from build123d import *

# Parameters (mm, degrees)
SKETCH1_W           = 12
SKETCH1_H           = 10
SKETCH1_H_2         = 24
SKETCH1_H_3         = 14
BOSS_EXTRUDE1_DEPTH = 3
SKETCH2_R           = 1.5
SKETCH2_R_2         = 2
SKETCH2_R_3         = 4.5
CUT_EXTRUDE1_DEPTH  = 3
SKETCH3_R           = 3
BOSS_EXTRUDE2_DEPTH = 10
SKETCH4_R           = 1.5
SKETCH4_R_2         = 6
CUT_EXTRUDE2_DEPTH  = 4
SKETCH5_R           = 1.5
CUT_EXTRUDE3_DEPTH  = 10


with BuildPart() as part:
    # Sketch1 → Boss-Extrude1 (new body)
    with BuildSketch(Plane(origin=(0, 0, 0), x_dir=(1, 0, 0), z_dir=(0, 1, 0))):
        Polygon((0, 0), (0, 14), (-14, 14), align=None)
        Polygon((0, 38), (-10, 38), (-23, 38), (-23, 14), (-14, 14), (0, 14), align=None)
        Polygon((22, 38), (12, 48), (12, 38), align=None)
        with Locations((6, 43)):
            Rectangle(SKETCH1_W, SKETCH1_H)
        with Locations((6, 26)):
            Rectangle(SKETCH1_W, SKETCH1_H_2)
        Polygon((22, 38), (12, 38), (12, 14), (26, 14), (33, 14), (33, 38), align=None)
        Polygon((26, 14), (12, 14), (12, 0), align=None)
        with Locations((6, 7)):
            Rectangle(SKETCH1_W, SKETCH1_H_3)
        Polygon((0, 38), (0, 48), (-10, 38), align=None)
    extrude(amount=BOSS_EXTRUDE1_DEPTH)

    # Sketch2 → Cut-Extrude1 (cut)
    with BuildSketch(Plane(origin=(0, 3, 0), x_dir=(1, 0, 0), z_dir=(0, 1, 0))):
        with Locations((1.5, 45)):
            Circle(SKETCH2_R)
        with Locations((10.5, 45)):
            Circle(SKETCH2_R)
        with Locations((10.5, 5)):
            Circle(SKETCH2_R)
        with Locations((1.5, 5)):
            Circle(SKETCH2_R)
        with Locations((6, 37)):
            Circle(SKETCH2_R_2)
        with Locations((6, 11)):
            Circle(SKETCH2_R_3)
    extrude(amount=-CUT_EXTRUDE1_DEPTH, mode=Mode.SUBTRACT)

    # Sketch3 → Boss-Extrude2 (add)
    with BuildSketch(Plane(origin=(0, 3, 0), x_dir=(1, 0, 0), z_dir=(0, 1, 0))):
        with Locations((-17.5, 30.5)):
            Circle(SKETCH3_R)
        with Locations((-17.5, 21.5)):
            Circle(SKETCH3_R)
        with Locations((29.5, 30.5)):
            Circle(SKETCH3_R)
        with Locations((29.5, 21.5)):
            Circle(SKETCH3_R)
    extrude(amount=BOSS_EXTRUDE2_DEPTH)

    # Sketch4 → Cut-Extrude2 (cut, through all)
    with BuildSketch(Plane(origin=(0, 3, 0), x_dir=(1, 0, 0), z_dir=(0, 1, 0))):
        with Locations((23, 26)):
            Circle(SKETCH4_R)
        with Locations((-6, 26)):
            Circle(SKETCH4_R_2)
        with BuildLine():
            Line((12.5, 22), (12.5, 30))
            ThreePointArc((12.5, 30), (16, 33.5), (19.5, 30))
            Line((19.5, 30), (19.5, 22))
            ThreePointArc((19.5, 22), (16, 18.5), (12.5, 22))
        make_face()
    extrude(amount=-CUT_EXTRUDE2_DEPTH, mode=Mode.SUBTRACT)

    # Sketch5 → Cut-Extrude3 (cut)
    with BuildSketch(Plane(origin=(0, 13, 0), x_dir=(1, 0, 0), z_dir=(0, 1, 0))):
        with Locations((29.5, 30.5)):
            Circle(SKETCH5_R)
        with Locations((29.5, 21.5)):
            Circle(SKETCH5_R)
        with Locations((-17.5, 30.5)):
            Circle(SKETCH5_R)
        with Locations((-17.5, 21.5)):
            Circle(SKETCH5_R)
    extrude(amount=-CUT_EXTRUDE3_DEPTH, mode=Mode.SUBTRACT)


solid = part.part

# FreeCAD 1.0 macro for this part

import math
import FreeCAD as App
import Part
import Sketcher
from FreeCAD import Vector
Q = App.Units.Quantity


def add_polygon(sketch, points):
    """Adds a closed chain of lines whose ends are joined by coincident constraints."""
    first, n = sketch.GeometryCount, len(points)
    for a, b in zip(points, points[1:] + points[:1]):
        sketch.addGeometry(Part.LineSegment(App.Vector(*a, 0), App.Vector(*b, 0)), False)
    for i in range(n):
        sketch.addConstraint(Sketcher.Constraint("Coincident", first + i, 2, first + (i + 1) % n, 1))

doc = App.newDocument("Part")
params = doc.addObject("Spreadsheet::Sheet", "Params")
for row, (alias, value) in enumerate([
    ("sketch1_width", "7 mm"),
    ("sketch1_width2", "11 mm"),
    ("sketch1_width3", "12 mm"),
    ("sketch1_width4", "13 mm"),
    ("sketch1_height", "24 mm"),
    ("pad1_length", "3 mm"),
    ("sketch2_diameter", "3 mm"),
    ("sketch2_diameter2", "4 mm"),
    ("sketch2_diameter3", "9 mm"),
    ("pocket1_length", "3 mm"),
    ("sketch3_diameter", "6 mm"),
    ("pad2_length", "10 mm"),
    ("sketch4_diameter", "3 mm"),
    ("sketch4_diameter2", "12 mm"),
    ("sketch4_radius", "3.5 mm"),
    ("sketch4_height", "8 mm"),
    ("sketch5_diameter", "3 mm"),
    ("pocket3_length", "10 mm"),
], start=1):
    params.set(f"A{row}", alias)
    params.set(f"B{row}", "=" + value)
    params.setAlias(f"B{row}", alias)

body = doc.addObject("PartDesign::Body", "Body")

# Sketch on XZ plane
sketch1 = body.newObject("Sketcher::SketchObject", "Sketch")
sketch1.AttachmentSupport = (doc.getObject("XZ_Plane"), [""])
sketch1.MapMode = "FlatFace"
add_polygon(sketch1, [(12, 0), (26, -14), (33, -14), (33, -38), (22, -38), (12, -48), (0, -48), (-10, -38), (-23, -38), (-23, -14), (-14, -14), (0, 0)])  # lines 0-11
sketch1.addConstraint([
    Sketcher.Constraint("Horizontal", 1),
    Sketcher.Constraint("Vertical", 2),
    Sketcher.Constraint("Horizontal", 3),
    Sketcher.Constraint("Horizontal", 5),
    Sketcher.Constraint("Horizontal", 7),
    Sketcher.Constraint("Vertical", 8),
    Sketcher.Constraint("Horizontal", 9),
    Sketcher.Constraint("Horizontal", 11),
    Sketcher.Constraint("Coincident", 10, 2, -1, 1),
    Sketcher.Constraint("PointOnObject", 5, 2, -2),
    Sketcher.Constraint("Perpendicular", 0, 4),
    Sketcher.Constraint("Perpendicular", 4, 6),
    Sketcher.Constraint("Perpendicular", 6, 10),
    Sketcher.Constraint("Horizontal", 3, 2, 6, 2),
    Sketcher.Constraint("Horizontal", 1, 2, 8, 2),
    Sketcher.Constraint("Vertical", 4, 2, 11, 2),
    Sketcher.Constraint("Equal", 4, 6),
    Sketcher.Constraint("DistanceX", 1, 1, 1, 2, Q("7 mm")),
    Sketcher.Constraint("DistanceX", 3, 2, 3, 1, Q("11 mm")),
    Sketcher.Constraint("DistanceX", 5, 2, 5, 1, Q("12 mm")),
    Sketcher.Constraint("DistanceX", 7, 2, 7, 1, Q("13 mm")),
    Sketcher.Constraint("DistanceY", 2, 2, 2, 1, Q("24 mm")),
    Sketcher.Constraint("DistanceX", -1, 1, 0, 2, Q("26 mm")),
])
sketch1.setExpression("Constraints[29]", "Params.sketch1_width")
sketch1.setExpression("Constraints[30]", "Params.sketch1_width2")
sketch1.setExpression("Constraints[31]", "Params.sketch1_width3")
sketch1.setExpression("Constraints[32]", "Params.sketch1_width4")
sketch1.setExpression("Constraints[33]", "Params.sketch1_height")
pad1 = body.newObject("PartDesign::Pad", "Pad")
pad1.Profile = sketch1
pad1.setExpression("Length", "Params.pad1_length")
pad1.Reversed = True

# Sketch on XZ plane
sketch2 = body.newObject("Sketcher::SketchObject", "Sketch001")
sketch2.AttachmentSupport = (doc.getObject("XZ_Plane"), [""])
sketch2.MapMode = "FlatFace"
sketch2.AttachmentOffset = App.Placement(Vector(0, 0, -3), App.Rotation())
sketch2.addGeometry([
    Part.Circle(Vector(1.5, -45, 0), Vector(0, 0, 1), 1.5),  # 0
    Part.Circle(Vector(10.5, -45, 0), Vector(0, 0, 1), 1.5),  # 1
    Part.Circle(Vector(10.5, -5, 0), Vector(0, 0, 1), 1.5),  # 2
    Part.Circle(Vector(1.5, -5, 0), Vector(0, 0, 1), 1.5),  # 3
    Part.Circle(Vector(6, -37, 0), Vector(0, 0, 1), 2),  # 4
    Part.Circle(Vector(6, -11, 0), Vector(0, 0, 1), 4.5),  # 5
], False)
sketch2.addConstraint([
    Sketcher.Constraint("Equal", 0, 1),
    Sketcher.Constraint("Equal", 1, 2),
    Sketcher.Constraint("Equal", 2, 3),
    Sketcher.Constraint("Horizontal", 0, 3, 1, 3),
    Sketcher.Constraint("Horizontal", 2, 3, 3, 3),
    Sketcher.Constraint("Vertical", 1, 3, 2, 3),
    Sketcher.Constraint("Vertical", 0, 3, 3, 3),
    Sketcher.Constraint("Vertical", 4, 3, 5, 3),
    Sketcher.Constraint("Diameter", 0, Q("3 mm")),
    Sketcher.Constraint("Diameter", 4, Q("4 mm")),
    Sketcher.Constraint("Diameter", 5, Q("9 mm")),
    Sketcher.Constraint("DistanceY", 0, 3, -1, 1, Q("45 mm")),
    Sketcher.Constraint("DistanceY", 2, 3, -1, 1, Q("5 mm")),
    Sketcher.Constraint("DistanceX", -1, 1, 4, 3, Q("6 mm")),
    Sketcher.Constraint("DistanceY", 4, 3, -1, 1, Q("37 mm")),
    Sketcher.Constraint("DistanceY", 5, 3, -1, 1, Q("11 mm")),
    Sketcher.Constraint("DistanceX", 0, 3, 1, 3, Q("9 mm")),
    Sketcher.Constraint("DistanceX", -1, 1, 0, 3, Q("1.5 mm")),
])
sketch2.setExpression("Constraints[8]", "Params.sketch2_diameter")
sketch2.setExpression("Constraints[9]", "Params.sketch2_diameter2")
sketch2.setExpression("Constraints[10]", "Params.sketch2_diameter3")
pocket1 = body.newObject("PartDesign::Pocket", "Pocket")
pocket1.Profile = sketch2
pocket1.setExpression("Length", "Params.pocket1_length")
pocket1.Reversed = True

# Sketch on XZ plane
sketch3 = body.newObject("Sketcher::SketchObject", "Sketch002")
sketch3.AttachmentSupport = (doc.getObject("XZ_Plane"), [""])
sketch3.MapMode = "FlatFace"
sketch3.AttachmentOffset = App.Placement(Vector(0, 0, -3), App.Rotation())
sketch3.addGeometry([
    Part.Circle(Vector(-17.5, -30.5, 0), Vector(0, 0, 1), 3),
    Part.Circle(Vector(-17.5, -21.5, 0), Vector(0, 0, 1), 3),
    Part.Circle(Vector(29.5, -30.5, 0), Vector(0, 0, 1), 3),
    Part.Circle(Vector(29.5, -21.5, 0), Vector(0, 0, 1), 3),
], False)
sketch3.addConstraint([
    Sketcher.Constraint("Equal", 0, 1),
    Sketcher.Constraint("Equal", 1, 2),
    Sketcher.Constraint("Equal", 2, 3),
    Sketcher.Constraint("Horizontal", 0, 3, 2, 3),
    Sketcher.Constraint("Horizontal", 1, 3, 3, 3),
    Sketcher.Constraint("Vertical", 0, 3, 1, 3),
    Sketcher.Constraint("Vertical", 2, 3, 3, 3),
    Sketcher.Constraint("Diameter", 0, Q("6 mm")),
    Sketcher.Constraint("DistanceY", 0, 3, 1, 3, Q("9 mm")),
    Sketcher.Constraint("DistanceX", 0, 3, 2, 3, Q("47 mm")),
    Sketcher.Constraint("DistanceX", 0, 3, -1, 1, Q("17.5 mm")),
    Sketcher.Constraint("DistanceY", 0, 3, -1, 1, Q("30.5 mm")),
])
sketch3.setExpression("Constraints[7]", "Params.sketch3_diameter")
pad2 = body.newObject("PartDesign::Pad", "Pad001")
pad2.Profile = sketch3
pad2.setExpression("Length", "Params.pad2_length")
pad2.Reversed = True

# Sketch on XZ plane
sketch4 = body.newObject("Sketcher::SketchObject", "Sketch003")
sketch4.AttachmentSupport = (doc.getObject("XZ_Plane"), [""])
sketch4.MapMode = "FlatFace"
sketch4.AttachmentOffset = App.Placement(Vector(0, 0, -3), App.Rotation())
sketch4.addGeometry([
    Part.Circle(Vector(23, -26, 0), Vector(0, 0, 1), 1.5),  # 0
    Part.Circle(Vector(-6, -26, 0), Vector(0, 0, 1), 6),  # 1
    Part.LineSegment(Vector(12.5, -30, 0), Vector(12.5, -22, 0)),  # 2
    Part.ArcOfCircle(Part.Circle(Vector(16, -22, 0), Vector(0, 0, 1), 3.5), math.radians(0), math.radians(180)),  # 3
    Part.LineSegment(Vector(19.5, -22, 0), Vector(19.5, -30, 0)),  # 4
    Part.ArcOfCircle(Part.Circle(Vector(16, -30, 0), Vector(0, 0, 1), 3.5), math.radians(180), math.radians(360)),  # 5
], False)
sketch4.addConstraint([
    Sketcher.Constraint("Tangent", 2, 2, 3, 2),
    Sketcher.Constraint("Tangent", 3, 1, 4, 1),
    Sketcher.Constraint("Tangent", 4, 2, 5, 2),
    Sketcher.Constraint("Tangent", 5, 1, 2, 1),
    Sketcher.Constraint("Vertical", 2),
    Sketcher.Constraint("Vertical", 4),
    Sketcher.Constraint("Horizontal", 0, 3, 1, 3),
    Sketcher.Constraint("Diameter", 0, Q("3 mm")),
    Sketcher.Constraint("Diameter", 1, Q("12 mm")),
    Sketcher.Constraint("Radius", 3, Q("3.5 mm")),
    Sketcher.Constraint("DistanceY", 2, 1, 2, 2, Q("8 mm")),
    Sketcher.Constraint("DistanceX", -1, 1, 0, 3, Q("23 mm")),
    Sketcher.Constraint("DistanceY", 0, 3, -1, 1, Q("26 mm")),
    Sketcher.Constraint("DistanceX", 1, 3, -1, 1, Q("6 mm")),
    Sketcher.Constraint("DistanceX", -1, 1, 3, 3, Q("16 mm")),
    Sketcher.Constraint("DistanceY", 3, 3, -1, 1, Q("22 mm")),
])
sketch4.setExpression("Constraints[7]", "Params.sketch4_diameter")
sketch4.setExpression("Constraints[8]", "Params.sketch4_diameter2")
sketch4.setExpression("Constraints[9]", "Params.sketch4_radius")
sketch4.setExpression("Constraints[10]", "Params.sketch4_height")
pocket2 = body.newObject("PartDesign::Pocket", "Pocket001")
pocket2.Profile = sketch4
pocket2.Type = "ThroughAll"
pocket2.Reversed = True

# Sketch on XZ plane
sketch5 = body.newObject("Sketcher::SketchObject", "Sketch004")
sketch5.AttachmentSupport = (doc.getObject("XZ_Plane"), [""])
sketch5.MapMode = "FlatFace"
sketch5.AttachmentOffset = App.Placement(Vector(0, 0, -13), App.Rotation())
sketch5.addGeometry([
    Part.Circle(Vector(29.5, -30.5, 0), Vector(0, 0, 1), 1.5),
    Part.Circle(Vector(29.5, -21.5, 0), Vector(0, 0, 1), 1.5),
    Part.Circle(Vector(-17.5, -30.5, 0), Vector(0, 0, 1), 1.5),
    Part.Circle(Vector(-17.5, -21.5, 0), Vector(0, 0, 1), 1.5),
], False)
sketch5.addConstraint([
    Sketcher.Constraint("Equal", 0, 1),
    Sketcher.Constraint("Equal", 1, 2),
    Sketcher.Constraint("Equal", 2, 3),
    Sketcher.Constraint("Horizontal", 0, 3, 2, 3),
    Sketcher.Constraint("Horizontal", 1, 3, 3, 3),
    Sketcher.Constraint("Vertical", 0, 3, 1, 3),
    Sketcher.Constraint("Vertical", 2, 3, 3, 3),
    Sketcher.Constraint("Diameter", 0, Q("3 mm")),
    Sketcher.Constraint("DistanceY", 0, 3, 1, 3, Q("9 mm")),
    Sketcher.Constraint("DistanceX", 2, 3, 0, 3, Q("47 mm")),
    Sketcher.Constraint("DistanceX", -1, 1, 0, 3, Q("29.5 mm")),
    Sketcher.Constraint("DistanceY", 0, 3, -1, 1, Q("30.5 mm")),
])
sketch5.setExpression("Constraints[7]", "Params.sketch5_diameter")
pocket3 = body.newObject("PartDesign::Pocket", "Pocket002")
pocket3.Profile = sketch5
pocket3.setExpression("Length", "Params.pocket3_length")
pocket3.Reversed = True

doc.recompute()
